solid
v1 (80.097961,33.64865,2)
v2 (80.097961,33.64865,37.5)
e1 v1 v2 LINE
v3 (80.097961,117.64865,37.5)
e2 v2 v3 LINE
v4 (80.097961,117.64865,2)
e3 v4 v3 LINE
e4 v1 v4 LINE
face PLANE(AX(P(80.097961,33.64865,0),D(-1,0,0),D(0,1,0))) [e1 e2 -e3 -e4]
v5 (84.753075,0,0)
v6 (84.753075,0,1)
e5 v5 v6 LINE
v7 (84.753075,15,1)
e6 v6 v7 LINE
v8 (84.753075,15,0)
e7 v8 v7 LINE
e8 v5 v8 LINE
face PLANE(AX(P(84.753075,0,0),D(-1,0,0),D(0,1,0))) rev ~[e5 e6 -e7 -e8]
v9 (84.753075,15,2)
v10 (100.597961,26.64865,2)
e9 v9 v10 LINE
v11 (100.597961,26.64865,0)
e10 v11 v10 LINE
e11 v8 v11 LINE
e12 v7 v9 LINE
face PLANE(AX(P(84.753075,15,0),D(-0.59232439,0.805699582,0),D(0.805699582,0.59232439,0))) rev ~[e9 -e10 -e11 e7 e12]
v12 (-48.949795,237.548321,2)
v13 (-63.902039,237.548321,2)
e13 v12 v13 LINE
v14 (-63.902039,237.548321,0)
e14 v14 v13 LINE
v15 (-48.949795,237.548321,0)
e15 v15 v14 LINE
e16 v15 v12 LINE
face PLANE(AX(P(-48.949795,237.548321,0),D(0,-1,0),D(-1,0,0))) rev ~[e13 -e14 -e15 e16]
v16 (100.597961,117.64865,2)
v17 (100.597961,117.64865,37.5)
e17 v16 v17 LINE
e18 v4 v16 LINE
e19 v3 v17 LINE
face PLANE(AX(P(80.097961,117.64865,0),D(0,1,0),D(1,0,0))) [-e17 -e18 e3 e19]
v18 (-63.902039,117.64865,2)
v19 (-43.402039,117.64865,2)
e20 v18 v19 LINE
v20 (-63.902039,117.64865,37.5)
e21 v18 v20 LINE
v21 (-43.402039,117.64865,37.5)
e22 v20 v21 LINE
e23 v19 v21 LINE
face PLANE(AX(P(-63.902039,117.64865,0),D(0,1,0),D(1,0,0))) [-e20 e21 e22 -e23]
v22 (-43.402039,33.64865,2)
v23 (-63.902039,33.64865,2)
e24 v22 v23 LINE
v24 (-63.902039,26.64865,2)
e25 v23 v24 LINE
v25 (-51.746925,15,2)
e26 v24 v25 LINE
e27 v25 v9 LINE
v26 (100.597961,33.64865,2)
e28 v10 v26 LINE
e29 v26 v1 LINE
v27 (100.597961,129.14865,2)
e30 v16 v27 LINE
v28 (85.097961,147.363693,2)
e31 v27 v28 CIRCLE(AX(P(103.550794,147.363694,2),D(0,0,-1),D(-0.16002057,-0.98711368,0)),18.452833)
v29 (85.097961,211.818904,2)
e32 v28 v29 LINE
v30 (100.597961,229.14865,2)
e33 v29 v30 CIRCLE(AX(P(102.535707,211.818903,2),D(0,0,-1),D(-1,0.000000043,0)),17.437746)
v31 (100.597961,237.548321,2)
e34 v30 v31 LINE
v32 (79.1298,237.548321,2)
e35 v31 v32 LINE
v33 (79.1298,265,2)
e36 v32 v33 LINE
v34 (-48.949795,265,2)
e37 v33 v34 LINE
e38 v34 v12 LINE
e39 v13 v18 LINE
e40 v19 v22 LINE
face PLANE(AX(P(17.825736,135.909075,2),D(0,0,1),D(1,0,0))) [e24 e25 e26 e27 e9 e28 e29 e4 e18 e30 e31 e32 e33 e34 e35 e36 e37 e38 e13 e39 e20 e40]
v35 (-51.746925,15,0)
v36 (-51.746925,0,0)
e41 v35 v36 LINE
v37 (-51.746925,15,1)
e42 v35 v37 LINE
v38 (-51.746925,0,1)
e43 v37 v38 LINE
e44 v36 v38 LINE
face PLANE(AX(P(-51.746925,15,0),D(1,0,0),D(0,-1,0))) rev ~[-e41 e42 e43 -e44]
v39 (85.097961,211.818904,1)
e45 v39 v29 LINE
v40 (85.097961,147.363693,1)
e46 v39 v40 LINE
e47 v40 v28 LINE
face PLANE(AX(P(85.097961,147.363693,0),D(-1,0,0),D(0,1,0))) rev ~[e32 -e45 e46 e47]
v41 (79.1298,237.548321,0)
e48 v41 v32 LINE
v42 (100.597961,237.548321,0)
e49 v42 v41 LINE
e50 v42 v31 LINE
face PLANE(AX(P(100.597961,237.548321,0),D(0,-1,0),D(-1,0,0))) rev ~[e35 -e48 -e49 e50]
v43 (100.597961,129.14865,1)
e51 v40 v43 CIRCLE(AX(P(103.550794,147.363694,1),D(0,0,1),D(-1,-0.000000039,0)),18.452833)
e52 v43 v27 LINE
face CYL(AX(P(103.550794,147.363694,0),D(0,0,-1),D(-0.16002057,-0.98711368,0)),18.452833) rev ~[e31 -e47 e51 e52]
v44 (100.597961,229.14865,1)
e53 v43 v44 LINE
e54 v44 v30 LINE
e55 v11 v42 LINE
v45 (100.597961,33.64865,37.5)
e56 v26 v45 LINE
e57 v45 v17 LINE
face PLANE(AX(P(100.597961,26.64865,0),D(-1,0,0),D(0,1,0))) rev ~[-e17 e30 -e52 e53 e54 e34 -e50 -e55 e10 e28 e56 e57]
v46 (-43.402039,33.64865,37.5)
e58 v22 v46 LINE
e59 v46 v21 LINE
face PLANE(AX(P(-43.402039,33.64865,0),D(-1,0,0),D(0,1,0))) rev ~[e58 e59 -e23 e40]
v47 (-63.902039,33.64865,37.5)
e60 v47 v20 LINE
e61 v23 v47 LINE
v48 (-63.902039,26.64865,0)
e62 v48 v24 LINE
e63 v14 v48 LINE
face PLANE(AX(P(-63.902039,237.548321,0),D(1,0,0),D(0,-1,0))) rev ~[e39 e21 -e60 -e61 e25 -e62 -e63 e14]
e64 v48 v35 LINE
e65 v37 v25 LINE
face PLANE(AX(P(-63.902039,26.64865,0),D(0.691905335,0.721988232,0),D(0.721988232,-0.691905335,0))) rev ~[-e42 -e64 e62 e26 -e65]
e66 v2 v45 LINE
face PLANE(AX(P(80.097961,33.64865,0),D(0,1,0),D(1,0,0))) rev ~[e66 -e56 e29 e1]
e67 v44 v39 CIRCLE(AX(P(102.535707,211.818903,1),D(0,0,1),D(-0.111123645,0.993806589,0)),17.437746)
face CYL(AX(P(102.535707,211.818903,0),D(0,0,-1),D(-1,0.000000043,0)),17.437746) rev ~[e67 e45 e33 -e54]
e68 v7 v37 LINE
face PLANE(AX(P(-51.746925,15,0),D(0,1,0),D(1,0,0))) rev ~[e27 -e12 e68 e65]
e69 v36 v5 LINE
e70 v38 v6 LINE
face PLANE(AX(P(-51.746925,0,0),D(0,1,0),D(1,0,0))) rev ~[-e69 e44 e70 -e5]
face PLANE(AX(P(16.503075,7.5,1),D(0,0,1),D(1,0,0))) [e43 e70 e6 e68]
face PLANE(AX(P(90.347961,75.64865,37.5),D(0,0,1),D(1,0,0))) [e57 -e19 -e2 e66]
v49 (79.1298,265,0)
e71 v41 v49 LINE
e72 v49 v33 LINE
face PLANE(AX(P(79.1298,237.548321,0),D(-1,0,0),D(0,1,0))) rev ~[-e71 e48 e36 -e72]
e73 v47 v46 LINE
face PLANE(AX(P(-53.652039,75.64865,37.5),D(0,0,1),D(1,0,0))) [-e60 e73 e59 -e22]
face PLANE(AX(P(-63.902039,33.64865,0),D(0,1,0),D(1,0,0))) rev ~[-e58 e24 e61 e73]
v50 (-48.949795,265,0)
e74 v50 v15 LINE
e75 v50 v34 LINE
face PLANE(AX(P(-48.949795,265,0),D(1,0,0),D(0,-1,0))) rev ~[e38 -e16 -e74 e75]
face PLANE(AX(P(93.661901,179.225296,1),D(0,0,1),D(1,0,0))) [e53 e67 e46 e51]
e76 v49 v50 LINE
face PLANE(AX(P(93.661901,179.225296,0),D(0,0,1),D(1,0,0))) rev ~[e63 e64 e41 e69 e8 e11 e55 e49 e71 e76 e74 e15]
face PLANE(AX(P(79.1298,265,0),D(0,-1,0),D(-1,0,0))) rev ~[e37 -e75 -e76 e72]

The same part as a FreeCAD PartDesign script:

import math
import FreeCAD as App
import Part
import Sketcher
from FreeCAD import Vector

doc = App.newDocument("Part")
params = doc.addObject("Spreadsheet::Sheet", "Params")
for row, (alias, value) in enumerate([
    ("sketch1_height", "7 mm"),
    ("sketch1_height2", "84 mm"),
    ("sketch1_width", "136.5 mm"),
    ("sketch1_width2", "20.5 mm"),
    ("sketch1_height3", "11.5 mm"),
    ("pad1_length", "2 mm"),
    ("sketch2_height", "100 mm"),
    ("sketch2_height2", "15 mm"),
    ("sketch2_width", "136.5 mm"),
    ("pad2_length", "1 mm"),
    ("sketch3_height", "84 mm"),
    ("sketch3_width", "20.5 mm"),
    ("pad3_length", "37.5 mm"),
], start=1):
    params.set(f"A{row}", alias)
    params.set(f"B{row}", "=" + value)
    params.setAlias(f"B{row}", alias)

body = doc.addObject("PartDesign::Body", "Body")

# Sketch on XY plane
sketch1 = doc.addObject("Sketcher::SketchObject", "Sketch")
body.addObject(sketch1)
sketch1.AttachmentSupport = (doc.XY_Plane, [""])
sketch1.MapMode = "FlatFace"
sketch1.addGeometry(Part.LineSegment(Vector(-52, 15, 0), Vector(85, 15, 0)), False)
sketch1.addGeometry(Part.LineSegment(Vector(85, 15, 0), Vector(101, 27, 0)), False)
sketch1.addGeometry(Part.LineSegment(Vector(101, 27, 0), Vector(101, 34, 0)), False)
sketch1.addGeometry(Part.LineSegment(Vector(101, 34, 0), Vector(80, 34, 0)), False)
sketch1.addGeometry(Part.LineSegment(Vector(80, 34, 0), Vector(80, 118, 0)), False)
sketch1.addGeometry(Part.LineSegment(Vector(80, 118, 0), Vector(101, 118, 0)), False)
sketch1.addGeometry(Part.LineSegment(Vector(101, 118, 0), Vector(101, 129, 0)), False)
sketch1.addGeometry(Part.ArcOfCircle(Part.Circle(Vector(104, 147, 0), Vector(0, 0, 1), 18), math.radians(-180), math.radians(-99)), False)
sketch1.addGeometry(Part.LineSegment(Vector(85, 147, 0), Vector(85, 212, 0)), False)
sketch1.addGeometry(Part.ArcOfCircle(Part.Circle(Vector(103, 212, 0), Vector(0, 0, 1), 17), math.radians(96), math.radians(180)), False)
sketch1.addGeometry(Part.LineSegment(Vector(101, 229, 0), Vector(101, 238, 0)), False)
sketch1.addGeometry(Part.LineSegment(Vector(101, 238, 0), Vector(79, 238, 0)), False)
sketch1.addGeometry(Part.LineSegment(Vector(79, 238, 0), Vector(79, 265, 0)), False)
sketch1.addGeometry(Part.LineSegment(Vector(79, 265, 0), Vector(-49, 265, 0)), False)
sketch1.addGeometry(Part.LineSegment(Vector(-49, 265, 0), Vector(-49, 238, 0)), False)
sketch1.addGeometry(Part.LineSegment(Vector(-49, 238, 0), Vector(-64, 238, 0)), False)
sketch1.addGeometry(Part.LineSegment(Vector(-64, 238, 0), Vector(-64, 118, 0)), False)
sketch1.addGeometry(Part.LineSegment(Vector(-64, 118, 0), Vector(-43, 118, 0)), False)
sketch1.addGeometry(Part.LineSegment(Vector(-43, 118, 0), Vector(-43, 34, 0)), False)
sketch1.addGeometry(Part.LineSegment(Vector(-43, 34, 0), Vector(-64, 34, 0)), False)
sketch1.addGeometry(Part.LineSegment(Vector(-64, 34, 0), Vector(-64, 27, 0)), False)
sketch1.addGeometry(Part.LineSegment(Vector(-64, 27, 0), Vector(-52, 15, 0)), False)
sketch1.addConstraint(Sketcher.Constraint("Coincident", 0, 2, 1, 1))
sketch1.addConstraint(Sketcher.Constraint("Coincident", 1, 2, 2, 1))
sketch1.addConstraint(Sketcher.Constraint("Coincident", 2, 2, 3, 1))
sketch1.addConstraint(Sketcher.Constraint("Coincident", 3, 2, 4, 1))
sketch1.addConstraint(Sketcher.Constraint("Coincident", 4, 2, 5, 1))
sketch1.addConstraint(Sketcher.Constraint("Coincident", 5, 2, 6, 1))
sketch1.addConstraint(Sketcher.Constraint("Coincident", 6, 2, 7, 2))
sketch1.addConstraint(Sketcher.Constraint("Tangent", 7, 1, 8, 1))
sketch1.addConstraint(Sketcher.Constraint("Tangent", 8, 2, 9, 2))
sketch1.addConstraint(Sketcher.Constraint("Coincident", 9, 1, 10, 1))
sketch1.addConstraint(Sketcher.Constraint("Coincident", 10, 2, 11, 1))
sketch1.addConstraint(Sketcher.Constraint("Coincident", 11, 2, 12, 1))
sketch1.addConstraint(Sketcher.Constraint("Coincident", 12, 2, 13, 1))
sketch1.addConstraint(Sketcher.Constraint("Coincident", 13, 2, 14, 1))
sketch1.addConstraint(Sketcher.Constraint("Coincident", 14, 2, 15, 1))
sketch1.addConstraint(Sketcher.Constraint("Coincident", 15, 2, 16, 1))
sketch1.addConstraint(Sketcher.Constraint("Coincident", 16, 2, 17, 1))
sketch1.addConstraint(Sketcher.Constraint("Coincident", 17, 2, 18, 1))
sketch1.addConstraint(Sketcher.Constraint("Coincident", 18, 2, 19, 1))
sketch1.addConstraint(Sketcher.Constraint("Coincident", 19, 2, 20, 1))
sketch1.addConstraint(Sketcher.Constraint("Coincident", 20, 2, 21, 1))
sketch1.addConstraint(Sketcher.Constraint("Coincident", 21, 2, 0, 1))
sketch1.addConstraint(Sketcher.Constraint("Horizontal", 0))
sketch1.addConstraint(Sketcher.Constraint("Vertical", 2))
sketch1.addConstraint(Sketcher.Constraint("Horizontal", 3))
sketch1.addConstraint(Sketcher.Constraint("Vertical", 4))
sketch1.addConstraint(Sketcher.Constraint("Horizontal", 5))
sketch1.addConstraint(Sketcher.Constraint("Vertical", 6))
sketch1.addConstraint(Sketcher.Constraint("Vertical", 8))
sketch1.addConstraint(Sketcher.Constraint("Vertical", 10))
sketch1.addConstraint(Sketcher.Constraint("Horizontal", 11))
sketch1.addConstraint(Sketcher.Constraint("Vertical", 12))
sketch1.addConstraint(Sketcher.Constraint("Horizontal", 13))
sketch1.addConstraint(Sketcher.Constraint("Vertical", 14))
sketch1.addConstraint(Sketcher.Constraint("Horizontal", 15))
sketch1.addConstraint(Sketcher.Constraint("Vertical", 16))
sketch1.addConstraint(Sketcher.Constraint("Horizontal", 17))
sketch1.addConstraint(Sketcher.Constraint("Vertical", 18))
sketch1.addConstraint(Sketcher.Constraint("Horizontal", 19))
sketch1.addConstraint(Sketcher.Constraint("Vertical", 20))
sketch1.addConstraint(Sketcher.Constraint("Horizontal", 11, 2, 14, 2))
sketch1.addConstraint(Sketcher.Constraint("Horizontal", 5, 2, 16, 2))
sketch1.addConstraint(Sketcher.Constraint("Horizontal", 3, 2, 18, 2))
sketch1.addConstraint(Sketcher.Constraint("Horizontal", 1, 2, 20, 2))
sketch1.addConstraint(Sketcher.Constraint("Vertical", 2, 2, 5, 2))
sketch1.addConstraint(Sketcher.Constraint("Vertical", 6, 2, 9, 1))
sketch1.addConstraint(Sketcher.Constraint("Vertical", 16, 2, 19, 2))
sketch1.addConstraint(Sketcher.Constraint("Equal", 5, 17))
sketch1.addConstraint(Sketcher.Constraint("DistanceY", 2, 1, 2, 2, 7.0))
sketch1.addConstraint(Sketcher.Constraint("DistanceY", 4, 1, 4, 2, 84.0))
sketch1.addConstraint(Sketcher.Constraint("DistanceX", 0, 1, 0, 2, 136.5))
sketch1.addConstraint(Sketcher.Constraint("DistanceX", 3, 2, 3, 1, 20.5))
sketch1.addConstraint(Sketcher.Constraint("DistanceY", 6, 1, 6, 2, 11.5))
sketch1.addConstraint(Sketcher.Constraint("DistanceY", -1, 1, 0, 2, 15.0))
sketch1.addConstraint(Sketcher.Constraint("DistanceY", -1, 1, 12, 2, 265.0))
sketch1.addConstraint(Sketcher.Constraint("DistanceX", 4, 2, 7, 1, 5.0))
sketch1.addConstraint(Sketcher.Constraint("DistanceY", 6, 2, 9, 1, 100.0))
sketch1.addConstraint(Sketcher.Constraint("DistanceX", 15, 2, 8, 2, 149.0))
sketch1.addConstraint(Sketcher.Constraint("Radius", 7, 18.452833))
sketch1.addConstraint(Sketcher.Constraint("Radius", 9, 17.437746))
sketch1.addConstraint(Sketcher.Constraint("DistanceX", 11, 2, 11, 1, 21.468161))
sketch1.addConstraint(Sketcher.Constraint("DistanceY", 10, 1, 10, 2, 8.399671))
sketch1.addConstraint(Sketcher.Constraint("DistanceY", 12, 1, 12, 2, 27.451679))
sketch1.addConstraint(Sketcher.Constraint("DistanceX", -1, 1, 11, 2, 79.1298))
sketch1.addConstraint(Sketcher.Constraint("DistanceX", 13, 2, 13, 1, 128.079595))
sketch1.addConstraint(Sketcher.Constraint("DistanceX", 0, 2, 7, 3, 18.797719))
sketch1.setExpression("Constraints[48]", "Params.sketch1_height")
sketch1.setExpression("Constraints[49]", "Params.sketch1_height2")
sketch1.setExpression("Constraints[50]", "Params.sketch1_width")
sketch1.setExpression("Constraints[51]", "Params.sketch1_width2")
sketch1.setExpression("Constraints[52]", "Params.sketch1_height3")
pad1 = doc.addObject("PartDesign::Pad", "Pad")
body.addObject(pad1)
pad1.Profile = sketch1
pad1.setExpression("Length", "Params.pad1_length")

# Sketch on XY plane
sketch2 = doc.addObject("Sketcher::SketchObject", "Sketch001")
body.addObject(sketch2)
sketch2.AttachmentSupport = (doc.XY_Plane, [""])
sketch2.MapMode = "FlatFace"
sketch2.addGeometry(Part.ArcOfCircle(Part.Circle(Vector(104, 147, 0), Vector(0, 0, 1), 18), math.radians(-180), math.radians(-99)), False)
sketch2.addGeometry(Part.LineSegment(Vector(101, 129, 0), Vector(101, 229, 0)), False)
sketch2.addGeometry(Part.ArcOfCircle(Part.Circle(Vector(103, 212, 0), Vector(0, 0, 1), 17), math.radians(96), math.radians(180)), False)
sketch2.addGeometry(Part.LineSegment(Vector(85, 212, 0), Vector(85, 147, 0)), False)
sketch2.addGeometry(Part.LineSegment(Vector(-52, 0, 0), Vector(85, 0, 0)), False)
sketch2.addGeometry(Part.LineSegment(Vector(85, 0, 0), Vector(85, 15, 0)), False)
sketch2.addGeometry(Part.LineSegment(Vector(85, 15, 0), Vector(-52, 15, 0)), False)
sketch2.addGeometry(Part.LineSegment(Vector(-52, 15, 0), Vector(-52, 0, 0)), False)
sketch2.addConstraint(Sketcher.Constraint("Coincident", 0, 2, 1, 1))
sketch2.addConstraint(Sketcher.Constraint("Coincident", 1, 2, 2, 1))
sketch2.addConstraint(Sketcher.Constraint("Tangent", 2, 2, 3, 1))
sketch2.addConstraint(Sketcher.Constraint("Tangent", 3, 2, 0, 1))
sketch2.addConstraint(Sketcher.Constraint("Coincident", 4, 2, 5, 1))
sketch2.addConstraint(Sketcher.Constraint("Coincident", 5, 2, 6, 1))
sketch2.addConstraint(Sketcher.Constraint("Coincident", 6, 2, 7, 1))
sketch2.addConstraint(Sketcher.Constraint("Coincident", 7, 2, 4, 1))
sketch2.addConstraint(Sketcher.Constraint("Vertical", 1))
sketch2.addConstraint(Sketcher.Constraint("Vertical", 3))
sketch2.addConstraint(Sketcher.Constraint("Horizontal", 4))
sketch2.addConstraint(Sketcher.Constraint("Vertical", 5))
sketch2.addConstraint(Sketcher.Constraint("Horizontal", 6))
sketch2.addConstraint(Sketcher.Constraint("Vertical", 7))
sketch2.addConstraint(Sketcher.Constraint("PointOnObject", 4, 2, -1))
sketch2.addConstraint(Sketcher.Constraint("DistanceY", 1, 1, 1, 2, 100.0))
sketch2.addConstraint(Sketcher.Constraint("DistanceY", 5, 1, 5, 2, 15.0))
sketch2.addConstraint(Sketcher.Constraint("DistanceX", 4, 1, 4, 2, 136.5))
sketch2.addConstraint(Sketcher.Constraint("DistanceX", 2, 2, 1, 2, 15.5))
sketch2.addConstraint(Sketcher.Constraint("Radius", 0, 18.452833))
sketch2.addConstraint(Sketcher.Constraint("Radius", 2, 17.437746))
sketch2.addConstraint(Sketcher.Constraint("DistanceX", -1, 1, 0, 2, 100.597961))
sketch2.addConstraint(Sketcher.Constraint("DistanceY", -1, 1, 0, 2, 129.14865))
sketch2.addConstraint(Sketcher.Constraint("DistanceX", 4, 2, 0, 3, 18.797719))
sketch2.setExpression("Constraints[15]", "Params.sketch2_height")
sketch2.setExpression("Constraints[16]", "Params.sketch2_height2")
sketch2.setExpression("Constraints[17]", "Params.sketch2_width")
pad2 = doc.addObject("PartDesign::Pad", "Pad001")
body.addObject(pad2)
pad2.Profile = sketch2
pad2.setExpression("Length", "Params.pad2_length")

# Sketch on XY plane
sketch3 = doc.addObject("Sketcher::SketchObject", "Sketch002")
body.addObject(sketch3)
sketch3.AttachmentSupport = (doc.XY_Plane, [""])
sketch3.MapMode = "FlatFace"
sketch3.addGeometry(Part.LineSegment(Vector(80, 118, 0), Vector(80, 34, 0)), False)
sketch3.addGeometry(Part.LineSegment(Vector(80, 34, 0), Vector(101, 34, 0)), False)
sketch3.addGeometry(Part.LineSegment(Vector(101, 34, 0), Vector(101, 118, 0)), False)
sketch3.addGeometry(Part.LineSegment(Vector(101, 118, 0), Vector(80, 118, 0)), False)
sketch3.addGeometry(Part.LineSegment(Vector(-64, 118, 0), Vector(-64, 34, 0)), False)
sketch3.addGeometry(Part.LineSegment(Vector(-64, 34, 0), Vector(-43, 34, 0)), False)
sketch3.addGeometry(Part.LineSegment(Vector(-43, 34, 0), Vector(-43, 118, 0)), False)
sketch3.addGeometry(Part.LineSegment(Vector(-43, 118, 0), Vector(-64, 118, 0)), False)
sketch3.addConstraint(Sketcher.Constraint("Coincident", 0, 2, 1, 1))
sketch3.addConstraint(Sketcher.Constraint("Coincident", 1, 2, 2, 1))
sketch3.addConstraint(Sketcher.Constraint("Coincident", 2, 2, 3, 1))
sketch3.addConstraint(Sketcher.Constraint("Coincident", 3, 2, 0, 1))
sketch3.addConstraint(Sketcher.Constraint("Coincident", 4, 2, 5, 1))
sketch3.addConstraint(Sketcher.Constraint("Coincident", 5, 2, 6, 1))
sketch3.addConstraint(Sketcher.Constraint("Coincident", 6, 2, 7, 1))
sketch3.addConstraint(Sketcher.Constraint("Coincident", 7, 2, 4, 1))
sketch3.addConstraint(Sketcher.Constraint("Vertical", 0))
sketch3.addConstraint(Sketcher.Constraint("Horizontal", 1))
sketch3.addConstraint(Sketcher.Constraint("Vertical", 2))
sketch3.addConstraint(Sketcher.Constraint("Horizontal", 3))
sketch3.addConstraint(Sketcher.Constraint("Vertical", 4))
sketch3.addConstraint(Sketcher.Constraint("Horizontal", 5))
sketch3.addConstraint(Sketcher.Constraint("Vertical", 6))
sketch3.addConstraint(Sketcher.Constraint("Horizontal", 7))
sketch3.addConstraint(Sketcher.Constraint("Horizontal", 1, 2, 4, 2))
sketch3.addConstraint(Sketcher.Constraint("Horizontal", 3, 2, 6, 2))
sketch3.addConstraint(Sketcher.Constraint("Equal", 3, 5))
sketch3.addConstraint(Sketcher.Constraint("DistanceY", 0, 2, 0, 1, 84.0))
sketch3.addConstraint(Sketcher.Constraint("DistanceX", 1, 1, 1, 2, 20.5))
sketch3.addConstraint(Sketcher.Constraint("DistanceX", 4, 2, 0, 2, 144.0))
sketch3.addConstraint(Sketcher.Constraint("DistanceX", -1, 1, 0, 2, 80.097961))
sketch3.addConstraint(Sketcher.Constraint("DistanceY", -1, 1, 0, 2, 33.64865))
sketch3.setExpression("Constraints[19]", "Params.sketch3_height")
sketch3.setExpression("Constraints[20]", "Params.sketch3_width")
pad3 = doc.addObject("PartDesign::Pad", "Pad002")
body.addObject(pad3)
pad3.Profile = sketch3
pad3.setExpression("Length", "Params.pad3_length")

doc.recompute()
